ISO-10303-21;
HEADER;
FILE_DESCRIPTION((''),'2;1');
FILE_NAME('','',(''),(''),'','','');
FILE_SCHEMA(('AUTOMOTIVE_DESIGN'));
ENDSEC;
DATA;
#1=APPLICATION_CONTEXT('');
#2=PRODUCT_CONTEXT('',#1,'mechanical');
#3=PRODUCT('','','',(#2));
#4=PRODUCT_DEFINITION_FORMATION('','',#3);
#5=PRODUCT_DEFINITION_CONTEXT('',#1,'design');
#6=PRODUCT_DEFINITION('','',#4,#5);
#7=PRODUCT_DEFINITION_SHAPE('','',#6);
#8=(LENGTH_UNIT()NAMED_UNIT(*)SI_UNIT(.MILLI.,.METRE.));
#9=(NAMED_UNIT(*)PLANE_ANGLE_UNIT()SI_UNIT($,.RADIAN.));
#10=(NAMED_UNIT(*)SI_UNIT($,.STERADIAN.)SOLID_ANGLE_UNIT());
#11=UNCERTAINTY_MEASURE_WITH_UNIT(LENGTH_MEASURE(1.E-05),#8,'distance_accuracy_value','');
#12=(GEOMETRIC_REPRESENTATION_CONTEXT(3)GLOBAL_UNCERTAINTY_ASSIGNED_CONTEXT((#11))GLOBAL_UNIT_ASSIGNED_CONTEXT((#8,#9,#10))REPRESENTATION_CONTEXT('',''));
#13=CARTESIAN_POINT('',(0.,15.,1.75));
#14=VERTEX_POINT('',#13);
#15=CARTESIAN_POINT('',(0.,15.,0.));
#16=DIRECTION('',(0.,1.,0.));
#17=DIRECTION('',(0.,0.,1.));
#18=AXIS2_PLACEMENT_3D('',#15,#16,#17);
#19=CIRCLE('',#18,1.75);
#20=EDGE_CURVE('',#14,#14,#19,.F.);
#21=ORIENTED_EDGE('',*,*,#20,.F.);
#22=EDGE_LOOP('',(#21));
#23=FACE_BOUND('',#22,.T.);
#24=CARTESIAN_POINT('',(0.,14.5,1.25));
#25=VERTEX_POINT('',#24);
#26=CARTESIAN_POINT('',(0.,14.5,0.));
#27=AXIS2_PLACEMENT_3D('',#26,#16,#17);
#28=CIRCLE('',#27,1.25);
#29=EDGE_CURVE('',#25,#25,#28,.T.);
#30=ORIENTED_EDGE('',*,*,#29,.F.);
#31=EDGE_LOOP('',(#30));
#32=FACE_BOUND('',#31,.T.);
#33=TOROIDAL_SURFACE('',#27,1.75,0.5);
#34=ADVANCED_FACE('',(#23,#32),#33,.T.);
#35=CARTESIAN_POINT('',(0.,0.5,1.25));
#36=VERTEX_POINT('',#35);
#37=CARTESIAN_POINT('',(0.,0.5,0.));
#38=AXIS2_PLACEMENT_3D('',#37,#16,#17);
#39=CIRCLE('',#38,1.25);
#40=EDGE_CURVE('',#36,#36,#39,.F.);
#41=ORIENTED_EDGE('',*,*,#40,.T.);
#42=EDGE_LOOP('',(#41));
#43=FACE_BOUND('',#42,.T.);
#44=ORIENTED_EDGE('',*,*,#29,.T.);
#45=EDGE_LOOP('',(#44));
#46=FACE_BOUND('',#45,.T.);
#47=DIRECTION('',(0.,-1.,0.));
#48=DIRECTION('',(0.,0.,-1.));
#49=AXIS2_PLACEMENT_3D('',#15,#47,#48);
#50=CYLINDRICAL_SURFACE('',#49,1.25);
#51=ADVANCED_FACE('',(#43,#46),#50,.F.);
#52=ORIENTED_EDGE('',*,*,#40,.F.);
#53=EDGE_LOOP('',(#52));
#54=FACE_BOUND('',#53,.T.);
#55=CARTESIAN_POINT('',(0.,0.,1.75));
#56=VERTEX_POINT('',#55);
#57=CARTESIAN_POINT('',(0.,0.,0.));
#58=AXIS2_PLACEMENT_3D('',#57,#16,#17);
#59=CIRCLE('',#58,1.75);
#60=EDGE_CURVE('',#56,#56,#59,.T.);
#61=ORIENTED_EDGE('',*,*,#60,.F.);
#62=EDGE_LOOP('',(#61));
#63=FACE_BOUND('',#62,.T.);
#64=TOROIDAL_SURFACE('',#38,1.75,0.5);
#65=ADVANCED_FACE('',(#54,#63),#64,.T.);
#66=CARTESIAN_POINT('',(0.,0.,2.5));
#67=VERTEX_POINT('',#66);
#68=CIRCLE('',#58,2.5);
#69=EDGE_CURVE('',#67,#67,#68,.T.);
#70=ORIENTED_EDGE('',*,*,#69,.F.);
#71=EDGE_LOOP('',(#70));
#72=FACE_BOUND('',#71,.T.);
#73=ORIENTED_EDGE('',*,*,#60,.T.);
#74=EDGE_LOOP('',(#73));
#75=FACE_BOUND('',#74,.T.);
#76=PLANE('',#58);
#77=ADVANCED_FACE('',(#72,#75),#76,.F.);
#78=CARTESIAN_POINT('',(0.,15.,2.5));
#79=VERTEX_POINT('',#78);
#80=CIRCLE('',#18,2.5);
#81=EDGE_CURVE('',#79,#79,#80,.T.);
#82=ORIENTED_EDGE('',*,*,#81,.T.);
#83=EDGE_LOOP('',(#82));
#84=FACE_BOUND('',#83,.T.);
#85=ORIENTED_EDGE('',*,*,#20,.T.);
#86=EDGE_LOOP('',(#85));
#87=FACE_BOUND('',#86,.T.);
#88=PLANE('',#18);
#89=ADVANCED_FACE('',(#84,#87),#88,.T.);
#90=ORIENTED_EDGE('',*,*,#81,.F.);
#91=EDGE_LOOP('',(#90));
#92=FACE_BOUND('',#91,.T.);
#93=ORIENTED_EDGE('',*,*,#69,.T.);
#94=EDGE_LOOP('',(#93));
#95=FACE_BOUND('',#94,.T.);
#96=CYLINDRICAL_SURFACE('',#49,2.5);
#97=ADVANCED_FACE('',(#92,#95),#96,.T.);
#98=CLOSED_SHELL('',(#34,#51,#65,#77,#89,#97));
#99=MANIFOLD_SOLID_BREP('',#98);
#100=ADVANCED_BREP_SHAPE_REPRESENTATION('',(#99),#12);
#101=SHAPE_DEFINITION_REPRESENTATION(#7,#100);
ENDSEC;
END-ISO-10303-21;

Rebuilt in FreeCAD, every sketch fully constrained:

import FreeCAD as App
import Part
import Sketcher
from FreeCAD import Vector


def edges_at(feature, points):
    """Names of the edges that pass closest to the given points."""
    edges = feature.Shape.Edges
    near = lambda p: min(range(len(edges)), key=lambda i: edges[i].distToShape(Part.Vertex(*p))[0])
    return sorted({f"Edge{near(p) + 1}" for p in points})

doc = App.newDocument("Part")
params = doc.addObject("Spreadsheet::Sheet", "Params")
for row, (alias, value) in enumerate([
    ("sketch1_diameter", "5 mm"),
    ("sketch1_diameter2", "2.5 mm"),
    ("pad1_length", "15 mm"),
    ("fillet_radius", "0.5 mm"),
], start=1):
    params.set(f"A{row}", alias)
    params.set(f"B{row}", "=" + value)
    params.setAlias(f"B{row}", alias)

body = doc.addObject("PartDesign::Body", "Body")

# Sketch on XZ plane
sketch1 = body.newObject("Sketcher::SketchObject", "Sketch")
sketch1.AttachmentSupport = (doc.getObject("XZ_Plane"), [""])
sketch1.MapMode = "FlatFace"
sketch1.addGeometry([
    Part.Circle(Vector(0, 0, 0), Vector(0, 0, 1), 2.5),
    Part.Circle(Vector(0, 0, 0), Vector(0, 0, 1), 1.2),
], False)
sketch1.addConstraint([
    Sketcher.Constraint("Coincident", 0, 3, -1, 1),
    Sketcher.Constraint("Coincident", 1, 3, -1, 1),
    Sketcher.Constraint("Diameter", 0, 5.0),
    Sketcher.Constraint("Diameter", 1, 2.5),
])
sketch1.setExpression("Constraints[2]", "Params.sketch1_diameter")
sketch1.setExpression("Constraints[3]", "Params.sketch1_diameter2")
pad1 = body.newObject("PartDesign::Pad", "Pad")
pad1.Profile = sketch1
pad1.setExpression("Length", "Params.pad1_length")
pad1.Reversed = True
doc.recompute()

fillet = body.newObject("PartDesign::Fillet", "Fillet")
fillet.Base = (pad1, edges_at(pad1, [(0, 0, -1.25), (0, 15, -1.25)]))
fillet.setExpression("Radius", "Params.fillet_radius")

doc.recompute()
